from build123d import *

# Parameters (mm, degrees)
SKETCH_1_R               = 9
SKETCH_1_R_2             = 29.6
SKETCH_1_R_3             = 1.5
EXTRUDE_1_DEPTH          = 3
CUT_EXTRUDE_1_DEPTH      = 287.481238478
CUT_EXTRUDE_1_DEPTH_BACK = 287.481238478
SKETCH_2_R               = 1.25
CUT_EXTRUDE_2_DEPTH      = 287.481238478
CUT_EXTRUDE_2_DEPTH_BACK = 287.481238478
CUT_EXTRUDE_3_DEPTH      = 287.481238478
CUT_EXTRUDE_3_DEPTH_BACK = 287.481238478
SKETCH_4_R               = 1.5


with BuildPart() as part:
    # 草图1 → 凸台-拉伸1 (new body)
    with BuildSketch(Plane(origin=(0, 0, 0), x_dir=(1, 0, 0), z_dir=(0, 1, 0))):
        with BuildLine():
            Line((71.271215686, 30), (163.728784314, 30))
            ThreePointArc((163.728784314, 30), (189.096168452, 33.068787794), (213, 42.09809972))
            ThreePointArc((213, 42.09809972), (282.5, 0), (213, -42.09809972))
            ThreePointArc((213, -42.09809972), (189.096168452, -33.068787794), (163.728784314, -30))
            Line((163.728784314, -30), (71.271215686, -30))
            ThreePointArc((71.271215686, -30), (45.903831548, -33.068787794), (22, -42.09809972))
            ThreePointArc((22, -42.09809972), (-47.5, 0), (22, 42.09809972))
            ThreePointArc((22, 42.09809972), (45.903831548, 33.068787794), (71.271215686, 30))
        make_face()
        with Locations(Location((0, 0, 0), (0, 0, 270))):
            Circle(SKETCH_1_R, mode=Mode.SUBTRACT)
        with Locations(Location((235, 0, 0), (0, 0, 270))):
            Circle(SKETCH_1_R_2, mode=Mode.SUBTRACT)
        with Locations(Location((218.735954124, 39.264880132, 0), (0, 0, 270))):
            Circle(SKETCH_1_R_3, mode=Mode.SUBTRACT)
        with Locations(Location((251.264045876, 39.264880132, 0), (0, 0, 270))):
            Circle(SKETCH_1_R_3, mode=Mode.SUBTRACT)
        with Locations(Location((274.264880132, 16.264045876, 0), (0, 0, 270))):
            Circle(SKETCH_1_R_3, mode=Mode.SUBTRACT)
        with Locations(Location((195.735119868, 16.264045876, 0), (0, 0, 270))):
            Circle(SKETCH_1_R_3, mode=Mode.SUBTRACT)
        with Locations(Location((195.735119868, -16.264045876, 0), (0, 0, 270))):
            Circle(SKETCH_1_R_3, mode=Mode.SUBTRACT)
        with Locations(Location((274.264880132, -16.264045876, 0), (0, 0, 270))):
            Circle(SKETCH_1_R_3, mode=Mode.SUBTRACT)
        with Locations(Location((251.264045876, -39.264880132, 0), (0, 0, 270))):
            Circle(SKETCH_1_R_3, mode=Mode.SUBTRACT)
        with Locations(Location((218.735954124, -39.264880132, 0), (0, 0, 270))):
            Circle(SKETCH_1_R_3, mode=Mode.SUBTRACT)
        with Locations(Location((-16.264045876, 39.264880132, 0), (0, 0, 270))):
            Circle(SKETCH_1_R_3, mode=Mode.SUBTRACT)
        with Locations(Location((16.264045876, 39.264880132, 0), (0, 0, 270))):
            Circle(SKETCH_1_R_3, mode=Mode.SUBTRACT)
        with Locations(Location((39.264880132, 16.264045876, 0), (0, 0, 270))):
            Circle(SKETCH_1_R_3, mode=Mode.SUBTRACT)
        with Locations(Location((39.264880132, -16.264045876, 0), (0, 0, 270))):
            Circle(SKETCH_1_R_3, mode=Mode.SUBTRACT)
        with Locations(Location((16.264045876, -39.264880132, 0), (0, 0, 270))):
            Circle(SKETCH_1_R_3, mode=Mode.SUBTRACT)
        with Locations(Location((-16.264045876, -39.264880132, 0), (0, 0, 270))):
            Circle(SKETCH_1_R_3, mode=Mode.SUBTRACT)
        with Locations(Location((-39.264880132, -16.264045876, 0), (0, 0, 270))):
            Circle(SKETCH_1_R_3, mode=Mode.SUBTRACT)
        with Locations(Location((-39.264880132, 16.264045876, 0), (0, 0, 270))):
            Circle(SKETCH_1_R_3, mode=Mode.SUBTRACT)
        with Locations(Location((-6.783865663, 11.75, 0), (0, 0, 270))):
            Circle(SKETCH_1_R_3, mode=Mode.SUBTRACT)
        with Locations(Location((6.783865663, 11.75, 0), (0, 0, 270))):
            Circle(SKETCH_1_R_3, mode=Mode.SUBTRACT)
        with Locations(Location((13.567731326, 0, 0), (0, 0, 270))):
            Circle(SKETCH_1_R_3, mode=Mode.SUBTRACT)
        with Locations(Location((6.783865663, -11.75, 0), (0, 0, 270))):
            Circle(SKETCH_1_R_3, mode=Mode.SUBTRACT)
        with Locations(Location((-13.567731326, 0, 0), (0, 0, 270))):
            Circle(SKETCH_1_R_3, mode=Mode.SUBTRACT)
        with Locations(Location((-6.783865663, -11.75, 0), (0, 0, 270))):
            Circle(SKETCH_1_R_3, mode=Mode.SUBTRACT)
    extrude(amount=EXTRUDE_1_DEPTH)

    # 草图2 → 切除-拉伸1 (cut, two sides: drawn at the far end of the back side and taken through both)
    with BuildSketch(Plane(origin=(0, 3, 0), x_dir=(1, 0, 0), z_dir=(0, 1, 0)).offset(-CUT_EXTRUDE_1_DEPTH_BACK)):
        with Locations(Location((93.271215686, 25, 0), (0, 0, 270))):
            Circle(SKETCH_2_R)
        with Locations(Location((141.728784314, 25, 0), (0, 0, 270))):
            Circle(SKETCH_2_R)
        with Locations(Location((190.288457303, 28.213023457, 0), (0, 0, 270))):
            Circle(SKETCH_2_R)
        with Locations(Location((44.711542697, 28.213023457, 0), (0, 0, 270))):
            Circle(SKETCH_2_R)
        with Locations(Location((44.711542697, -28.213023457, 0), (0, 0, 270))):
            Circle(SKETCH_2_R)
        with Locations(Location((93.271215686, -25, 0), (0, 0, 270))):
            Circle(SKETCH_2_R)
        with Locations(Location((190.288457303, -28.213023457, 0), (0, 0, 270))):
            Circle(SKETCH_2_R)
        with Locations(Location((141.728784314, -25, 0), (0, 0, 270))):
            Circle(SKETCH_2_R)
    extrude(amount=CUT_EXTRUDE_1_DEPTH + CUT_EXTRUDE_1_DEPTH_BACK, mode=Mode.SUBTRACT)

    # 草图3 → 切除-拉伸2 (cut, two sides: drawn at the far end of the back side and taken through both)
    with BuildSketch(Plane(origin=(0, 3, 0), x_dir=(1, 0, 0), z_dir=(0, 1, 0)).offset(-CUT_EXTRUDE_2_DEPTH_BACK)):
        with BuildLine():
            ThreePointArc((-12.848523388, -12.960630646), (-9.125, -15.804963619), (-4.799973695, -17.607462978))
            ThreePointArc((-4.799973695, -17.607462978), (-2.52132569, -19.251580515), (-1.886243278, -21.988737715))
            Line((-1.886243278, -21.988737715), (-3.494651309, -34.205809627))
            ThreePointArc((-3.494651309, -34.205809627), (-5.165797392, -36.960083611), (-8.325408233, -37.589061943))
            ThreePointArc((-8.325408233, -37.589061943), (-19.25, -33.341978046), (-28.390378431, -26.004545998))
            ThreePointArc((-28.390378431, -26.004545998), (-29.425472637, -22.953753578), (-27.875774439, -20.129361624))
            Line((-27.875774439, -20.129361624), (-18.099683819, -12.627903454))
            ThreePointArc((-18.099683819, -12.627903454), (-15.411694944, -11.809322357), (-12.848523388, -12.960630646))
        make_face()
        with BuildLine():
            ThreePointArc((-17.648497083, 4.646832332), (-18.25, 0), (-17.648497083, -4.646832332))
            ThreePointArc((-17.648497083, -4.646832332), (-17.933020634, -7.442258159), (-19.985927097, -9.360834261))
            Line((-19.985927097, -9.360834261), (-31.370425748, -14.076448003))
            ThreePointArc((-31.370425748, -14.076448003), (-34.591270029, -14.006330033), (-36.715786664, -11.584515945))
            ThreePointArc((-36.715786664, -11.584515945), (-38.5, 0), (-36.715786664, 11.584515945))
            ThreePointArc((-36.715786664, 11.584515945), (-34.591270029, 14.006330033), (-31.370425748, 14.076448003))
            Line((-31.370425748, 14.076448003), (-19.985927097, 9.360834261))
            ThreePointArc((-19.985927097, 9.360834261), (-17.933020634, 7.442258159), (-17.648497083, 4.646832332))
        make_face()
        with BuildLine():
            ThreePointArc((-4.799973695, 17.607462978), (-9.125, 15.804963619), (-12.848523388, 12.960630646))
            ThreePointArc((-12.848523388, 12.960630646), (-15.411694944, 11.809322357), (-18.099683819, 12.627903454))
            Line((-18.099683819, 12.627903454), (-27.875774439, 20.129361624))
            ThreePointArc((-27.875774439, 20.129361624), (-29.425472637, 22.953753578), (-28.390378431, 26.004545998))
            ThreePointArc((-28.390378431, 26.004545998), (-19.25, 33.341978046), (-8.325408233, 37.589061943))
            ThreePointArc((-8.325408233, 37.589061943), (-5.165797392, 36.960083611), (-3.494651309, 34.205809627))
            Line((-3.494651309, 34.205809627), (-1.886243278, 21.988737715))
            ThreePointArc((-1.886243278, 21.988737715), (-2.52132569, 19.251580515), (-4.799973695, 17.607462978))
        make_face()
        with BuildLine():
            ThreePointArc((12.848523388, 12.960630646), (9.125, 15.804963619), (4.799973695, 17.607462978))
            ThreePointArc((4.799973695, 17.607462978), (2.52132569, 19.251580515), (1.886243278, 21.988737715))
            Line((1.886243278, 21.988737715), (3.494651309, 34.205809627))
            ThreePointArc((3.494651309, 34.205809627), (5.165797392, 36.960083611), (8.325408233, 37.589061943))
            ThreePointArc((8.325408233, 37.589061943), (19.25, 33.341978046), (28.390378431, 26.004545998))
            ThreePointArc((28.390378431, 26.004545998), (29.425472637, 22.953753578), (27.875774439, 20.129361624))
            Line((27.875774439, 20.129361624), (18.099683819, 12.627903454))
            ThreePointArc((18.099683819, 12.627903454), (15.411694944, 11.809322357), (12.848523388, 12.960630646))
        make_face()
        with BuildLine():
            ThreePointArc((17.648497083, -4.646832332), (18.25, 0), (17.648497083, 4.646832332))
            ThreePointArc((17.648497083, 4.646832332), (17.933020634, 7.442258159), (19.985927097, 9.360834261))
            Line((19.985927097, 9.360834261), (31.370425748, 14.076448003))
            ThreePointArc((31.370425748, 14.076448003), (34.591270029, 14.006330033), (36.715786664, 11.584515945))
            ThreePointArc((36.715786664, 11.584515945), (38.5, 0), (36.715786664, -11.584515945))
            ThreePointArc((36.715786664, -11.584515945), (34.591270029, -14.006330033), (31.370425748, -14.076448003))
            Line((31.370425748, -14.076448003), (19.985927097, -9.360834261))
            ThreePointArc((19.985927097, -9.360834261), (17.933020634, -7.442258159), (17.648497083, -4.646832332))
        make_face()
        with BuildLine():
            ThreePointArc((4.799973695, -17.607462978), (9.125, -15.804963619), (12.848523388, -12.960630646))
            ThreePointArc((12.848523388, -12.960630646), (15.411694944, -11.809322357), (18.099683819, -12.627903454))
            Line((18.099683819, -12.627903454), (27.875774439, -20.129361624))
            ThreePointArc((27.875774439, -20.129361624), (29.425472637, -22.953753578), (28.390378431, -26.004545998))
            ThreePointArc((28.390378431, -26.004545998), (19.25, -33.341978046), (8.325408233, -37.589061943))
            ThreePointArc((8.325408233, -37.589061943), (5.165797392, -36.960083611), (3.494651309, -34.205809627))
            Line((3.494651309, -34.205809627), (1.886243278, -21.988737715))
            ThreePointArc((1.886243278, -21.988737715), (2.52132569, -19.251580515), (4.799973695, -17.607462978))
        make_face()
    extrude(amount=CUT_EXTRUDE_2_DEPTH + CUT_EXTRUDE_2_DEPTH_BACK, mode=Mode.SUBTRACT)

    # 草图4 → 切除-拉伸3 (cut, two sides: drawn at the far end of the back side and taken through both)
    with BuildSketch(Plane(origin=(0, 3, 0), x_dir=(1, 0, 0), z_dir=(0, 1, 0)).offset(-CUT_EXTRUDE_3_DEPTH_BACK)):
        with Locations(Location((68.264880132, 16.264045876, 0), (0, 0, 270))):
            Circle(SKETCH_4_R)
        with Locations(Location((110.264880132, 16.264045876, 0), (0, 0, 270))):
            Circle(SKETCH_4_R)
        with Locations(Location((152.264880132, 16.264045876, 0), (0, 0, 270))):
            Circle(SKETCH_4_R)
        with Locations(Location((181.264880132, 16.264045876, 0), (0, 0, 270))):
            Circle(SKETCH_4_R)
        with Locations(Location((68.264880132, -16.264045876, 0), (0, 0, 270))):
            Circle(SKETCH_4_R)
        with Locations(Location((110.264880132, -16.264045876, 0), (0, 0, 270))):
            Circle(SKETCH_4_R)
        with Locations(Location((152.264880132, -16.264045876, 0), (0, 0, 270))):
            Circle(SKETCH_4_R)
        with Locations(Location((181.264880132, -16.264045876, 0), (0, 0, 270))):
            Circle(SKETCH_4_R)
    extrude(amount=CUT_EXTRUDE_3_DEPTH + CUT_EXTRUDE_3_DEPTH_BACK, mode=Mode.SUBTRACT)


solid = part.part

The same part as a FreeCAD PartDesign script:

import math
import FreeCAD as App
import Part
import Sketcher

V = App.Vector
Q = App.Units.Quantity

doc = App.newDocument("Part")
params = doc.addObject("Spreadsheet::Sheet", "Params")
for row, (alias, value) in enumerate([
    ("sketch1_diameter", "3 mm"),
    ("sketch1_diameter2", "18 mm"),
    ("sketch1_diameter3", "59.2 mm"),
    ("sketch1_radius", "47.5 mm"),
    ("pad1_length", "3 mm"),
    ("sketch2_diameter", "2.5 mm"),
    ("sketch3_radius", "4 mm"),
    ("sketch3_radius2", "38.5 mm"),
    ("sketch3_radius3", "18.25 mm"),
    ("sketch4_diameter", "3 mm"),
], start=1):
    params.set(f"A{row}", alias)
    params.set(f"B{row}", "=" + value)
    params.setAlias(f"B{row}", alias)

body = doc.addObject("PartDesign::Body", "Body")

# Sketch on XZ plane
sketch1 = doc.addObject("Sketcher::SketchObject", "Sketch")
body.addObject(sketch1)
sketch1.AttachmentSupport = (doc.XZ_Plane, [""])
sketch1.MapMode = "FlatFace"
sketch1.addGeometry(Part.LineSegment(V(163.7, -30, 0), V(71.3, -30, 0)), False)
sketch1.addGeometry(Part.ArcOfCircle(Part.Circle(V(71.3, -136.4, 0), V(0, 0, 1), 106.4), math.radians(90), math.radians(118)), False)
sketch1.addGeometry(Part.ArcOfCircle(Part.Circle(V(0, 0, 0), V(0, 0, 1), 47.5), math.radians(62), math.radians(298)), False)
sketch1.addGeometry(Part.ArcOfCircle(Part.Circle(V(71.3, 136.4, 0), V(0, 0, 1), 106.4), math.radians(-118), math.radians(-90)), False)
sketch1.addGeometry(Part.LineSegment(V(71.3, 30, 0), V(163.7, 30, 0)), False)
sketch1.addGeometry(Part.ArcOfCircle(Part.Circle(V(163.7, 136.4, 0), V(0, 0, 1), 106.4), math.radians(-90), math.radians(-62)), False)
sketch1.addGeometry(Part.ArcOfCircle(Part.Circle(V(235, 0, 0), V(0, 0, 1), 47.5), math.radians(-118), math.radians(118)), False)
sketch1.addGeometry(Part.ArcOfCircle(Part.Circle(V(163.7, -136.4, 0), V(0, 0, 1), 106.4), math.radians(62), math.radians(90)), False)
sketch1.addGeometry(Part.Circle(V(251.3, 39.3, 0), V(0, 0, 1), 1.5), False)
sketch1.addGeometry(Part.Circle(V(218.7, 39.3, 0), V(0, 0, 1), 1.5), False)
sketch1.addGeometry(Part.Circle(V(274.3, 16.3, 0), V(0, 0, 1), 1.5), False)
sketch1.addGeometry(Part.Circle(V(195.7, 16.3, 0), V(0, 0, 1), 1.5), False)
sketch1.addGeometry(Part.Circle(V(16.3, 39.3, 0), V(0, 0, 1), 1.5), False)
sketch1.addGeometry(Part.Circle(V(-16.3, 39.3, 0), V(0, 0, 1), 1.5), False)
sketch1.addGeometry(Part.Circle(V(39.3, 16.3, 0), V(0, 0, 1), 1.5), False)
sketch1.addGeometry(Part.Circle(V(6.8, 11.8, 0), V(0, 0, 1), 1.5), False)
sketch1.addGeometry(Part.Circle(V(-39.3, 16.3, 0), V(0, 0, 1), 1.5), False)
sketch1.addGeometry(Part.Circle(V(-6.8, 11.8, 0), V(0, 0, 1), 1.5), False)
sketch1.addGeometry(Part.Circle(V(235, 0, 0), V(0, 0, 1), 29.6), False)
sketch1.addGeometry(Part.Circle(V(274.3, -16.3, 0), V(0, 0, 1), 1.5), False)
sketch1.addGeometry(Part.Circle(V(195.7, -16.3, 0), V(0, 0, 1), 1.5), False)
sketch1.addGeometry(Part.Circle(V(251.3, -39.3, 0), V(0, 0, 1), 1.5), False)
sketch1.addGeometry(Part.Circle(V(218.7, -39.3, 0), V(0, 0, 1), 1.5), False)
sketch1.addGeometry(Part.Circle(V(39.3, -16.3, 0), V(0, 0, 1), 1.5), False)
sketch1.addGeometry(Part.Circle(V(13.6, 0, 0), V(0, 0, 1), 1.5), False)
sketch1.addGeometry(Part.Circle(V(0, 0, 0), V(0, 0, 1), 9), False)
sketch1.addGeometry(Part.Circle(V(-13.6, 0, 0), V(0, 0, 1), 1.5), False)
sketch1.addGeometry(Part.Circle(V(6.8, -11.8, 0), V(0, 0, 1), 1.5), False)
sketch1.addGeometry(Part.Circle(V(-6.8, -11.8, 0), V(0, 0, 1), 1.5), False)
sketch1.addGeometry(Part.Circle(V(-39.3, -16.3, 0), V(0, 0, 1), 1.5), False)
sketch1.addGeometry(Part.Circle(V(16.3, -39.3, 0), V(0, 0, 1), 1.5), False)
sketch1.addGeometry(Part.Circle(V(-16.3, -39.3, 0), V(0, 0, 1), 1.5), False)
sketch1.addConstraint(Sketcher.Constraint("Tangent", 0, 2, 1, 1))
sketch1.addConstraint(Sketcher.Constraint("Tangent", 1, 2, 2, 2))
sketch1.addConstraint(Sketcher.Constraint("Tangent", 2, 1, 3, 1))
sketch1.addConstraint(Sketcher.Constraint("Tangent", 3, 2, 4, 1))
sketch1.addConstraint(Sketcher.Constraint("Tangent", 4, 2, 5, 1))
sketch1.addConstraint(Sketcher.Constraint("Tangent", 5, 2, 6, 2))
sketch1.addConstraint(Sketcher.Constraint("Tangent", 6, 1, 7, 1))
sketch1.addConstraint(Sketcher.Constraint("Tangent", 7, 2, 0, 1))
sketch1.addConstraint(Sketcher.Constraint("Horizontal", 0))
sketch1.addConstraint(Sketcher.Constraint("Horizontal", 4))
sketch1.addConstraint(Sketcher.Constraint("Coincident", 2, 3, -1, 1))
sketch1.addConstraint(Sketcher.Constraint("Coincident", 25, 3, -1, 1))
sketch1.addConstraint(Sketcher.Constraint("Coincident", 18, 3, 6, 3))
sketch1.addConstraint(Sketcher.Constraint("Equal", 1, 3))
sketch1.addConstraint(Sketcher.Constraint("Equal", 3, 5))
sketch1.addConstraint(Sketcher.Constraint("Equal", 2, 6))
sketch1.addConstraint(Sketcher.Constraint("Equal", 5, 7))
sketch1.addConstraint(Sketcher.Constraint("Equal", 8, 9))
sketch1.addConstraint(Sketcher.Constraint("Equal", 9, 10))
sketch1.addConstraint(Sketcher.Constraint("Equal", 10, 11))
sketch1.addConstraint(Sketcher.Constraint("Equal", 11, 12))
sketch1.addConstraint(Sketcher.Constraint("Equal", 12, 13))
sketch1.addConstraint(Sketcher.Constraint("Equal", 13, 14))
sketch1.addConstraint(Sketcher.Constraint("Equal", 14, 15))
sketch1.addConstraint(Sketcher.Constraint("Equal", 15, 16))
sketch1.addConstraint(Sketcher.Constraint("Equal", 16, 17))
sketch1.addConstraint(Sketcher.Constraint("Equal", 17, 19))
sketch1.addConstraint(Sketcher.Constraint("Equal", 19, 20))
sketch1.addConstraint(Sketcher.Constraint("Equal", 20, 21))
sketch1.addConstraint(Sketcher.Constraint("Equal", 21, 22))
sketch1.addConstraint(Sketcher.Constraint("Equal", 22, 23))
sketch1.addConstraint(Sketcher.Constraint("Equal", 23, 24))
sketch1.addConstraint(Sketcher.Constraint("Equal", 24, 26))
sketch1.addConstraint(Sketcher.Constraint("Equal", 26, 27))
sketch1.addConstraint(Sketcher.Constraint("Equal", 27, 28))
sketch1.addConstraint(Sketcher.Constraint("Equal", 28, 29))
sketch1.addConstraint(Sketcher.Constraint("Equal", 29, 30))
sketch1.addConstraint(Sketcher.Constraint("Equal", 30, 31))
sketch1.addConstraint(Sketcher.Constraint("Symmetric", 16, 3, 23, 3, -1, 1))
sketch1.addConstraint(Sketcher.Constraint("Symmetric", 24, 3, 26, 3, -1, 1))
sketch1.addConstraint(Sketcher.Constraint("Symmetric", 17, 3, 27, 3, -1, 1))
sketch1.addConstraint(Sketcher.Constraint("Symmetric", 15, 3, 28, 3, -1, 1))
sketch1.addConstraint(Sketcher.Constraint("Symmetric", 14, 3, 29, 3, -1, 1))
sketch1.addConstraint(Sketcher.Constraint("Symmetric", 13, 3, 30, 3, -1, 1))
sketch1.addConstraint(Sketcher.Constraint("Symmetric", 12, 3, 31, 3, -1, 1))
sketch1.addConstraint(Sketcher.Constraint("Symmetric", 12, 3, 13, 3, -2))
sketch1.addConstraint(Sketcher.Constraint("Symmetric", 14, 3, 16, 3, -2))
sketch1.addConstraint(Sketcher.Constraint("Symmetric", 15, 3, 17, 3, -2))
sketch1.addConstraint(Sketcher.Constraint("Symmetric", 5, 3, 7, 3, -1))
sketch1.addConstraint(Sketcher.Constraint("Symmetric", 10, 3, 19, 3, -1))
sketch1.addConstraint(Sketcher.Constraint("Symmetric", 11, 3, 20, 3, -1))
sketch1.addConstraint(Sketcher.Constraint("Symmetric", 8, 3, 21, 3, -1))
sketch1.addConstraint(Sketcher.Constraint("Symmetric", 9, 3, 22, 3, -1))
sketch1.addConstraint(Sketcher.Constraint("PointOnObject", 24, 3, -1))
sketch1.addConstraint(Sketcher.Constraint("Horizontal", 8, 3, 9, 3))
sketch1.addConstraint(Sketcher.Constraint("Horizontal", 10, 3, 11, 3))
sketch1.addConstraint(Sketcher.Constraint("Horizontal", 9, 3, 12, 3))
sketch1.addConstraint(Sketcher.Constraint("Horizontal", 11, 3, 14, 3))
sketch1.addConstraint(Sketcher.Constraint("Diameter", 8, 3.0))
sketch1.addConstraint(Sketcher.Constraint("Diameter", 25, 18.0))
sketch1.addConstraint(Sketcher.Constraint("Diameter", 18, 59.2))
sketch1.addConstraint(Sketcher.Constraint("Radius", 2, 47.5))
sketch1.addConstraint(Sketcher.Constraint("DistanceX", -1, 1, 6, 3, 235.0))
sketch1.addConstraint(Sketcher.Constraint("DistanceY", 0, 2, -1, 1, 30.0))
sketch1.addConstraint(Sketcher.Constraint("DistanceY", 27, 3, 15, 3, 23.5))
sketch1.addConstraint(Sketcher.Constraint("Radius", 1, 106.381034))
sketch1.addConstraint(Sketcher.Constraint("DistanceY", -1, 1, 8, 3, 39.26488))
sketch1.addConstraint(Sketcher.Constraint("DistanceX", -1, 1, 10, 3, 274.26488))
sketch1.addConstraint(Sketcher.Constraint("DistanceX", -1, 1, 11, 3, 195.73512))
sketch1.addConstraint(Sketcher.Constraint("DistanceX", -1, 1, 14, 3, 39.26488))
sketch1.addConstraint(Sketcher.Constraint("DistanceX", -1, 1, 24, 3, 13.567731))
sketch1.addConstraint(Sketcher.Constraint("DistanceX", 5, 3, 8, 3, 87.535262))
sketch1.addConstraint(Sketcher.Constraint("DistanceX", 9, 3, 8, 3, 32.528092))
sketch1.addConstraint(Sketcher.Constraint("DistanceY", 7, 3, 10, 3, 152.64508))
sketch1.addConstraint(Sketcher.Constraint("DistanceX", 12, 3, 3, 3, 55.00717))
sketch1.addConstraint(Sketcher.Constraint("DistanceX", 15, 3, 12, 3, 9.48018))
sketch1.setExpression("Constraints[58]", "Params.sketch1_diameter")
sketch1.setExpression("Constraints[59]", "Params.sketch1_diameter2")
sketch1.setExpression("Constraints[60]", "Params.sketch1_diameter3")
sketch1.setExpression("Constraints[61]", "Params.sketch1_radius")
pad1 = doc.addObject("PartDesign::Pad", "Pad")
body.addObject(pad1)
pad1.Profile = sketch1
pad1.setExpression("Length", "Params.pad1_length")
pad1.Reversed = True

# Sketch on XZ plane
sketch2 = doc.addObject("Sketcher::SketchObject", "Sketch001")
body.addObject(sketch2)
sketch2.AttachmentSupport = (doc.XZ_Plane, [""])
sketch2.MapMode = "FlatFace"
sketch2.AttachmentOffset = App.Placement(V(0, 0, -3), App.Rotation())
sketch2.addGeometry(Part.Circle(V(93.3, -25, 0), V(0, 0, 1), 1.2), False)
sketch2.addGeometry(Part.Circle(V(141.7, -25, 0), V(0, 0, 1), 1.2), False)
sketch2.addGeometry(Part.Circle(V(190.3, -28.2, 0), V(0, 0, 1), 1.2), False)
sketch2.addGeometry(Part.Circle(V(44.7, -28.2, 0), V(0, 0, 1), 1.2), False)
sketch2.addGeometry(Part.Circle(V(44.7, 28.2, 0), V(0, 0, 1), 1.2), False)
sketch2.addGeometry(Part.Circle(V(93.3, 25, 0), V(0, 0, 1), 1.2), False)
sketch2.addGeometry(Part.Circle(V(190.3, 28.2, 0), V(0, 0, 1), 1.2), False)
sketch2.addGeometry(Part.Circle(V(141.7, 25, 0), V(0, 0, 1), 1.2), False)
sketch2.addConstraint(Sketcher.Constraint("Equal", 0, 1))
sketch2.addConstraint(Sketcher.Constraint("Equal", 1, 2))
sketch2.addConstraint(Sketcher.Constraint("Equal", 2, 3))
sketch2.addConstraint(Sketcher.Constraint("Equal", 3, 4))
sketch2.addConstraint(Sketcher.Constraint("Equal", 4, 5))
sketch2.addConstraint(Sketcher.Constraint("Equal", 5, 6))
sketch2.addConstraint(Sketcher.Constraint("Equal", 6, 7))
sketch2.addConstraint(Sketcher.Constraint("Symmetric", 3, 3, 4, 3, -1))
sketch2.addConstraint(Sketcher.Constraint("Symmetric", 0, 3, 5, 3, -1))
sketch2.addConstraint(Sketcher.Constraint("Symmetric", 2, 3, 6, 3, -1))
sketch2.addConstraint(Sketcher.Constraint("Symmetric", 1, 3, 7, 3, -1))
sketch2.addConstraint(Sketcher.Constraint("Horizontal", 0, 3, 1, 3))
sketch2.addConstraint(Sketcher.Constraint("Horizontal", 2, 3, 3, 3))
sketch2.addConstraint(Sketcher.Constraint("Diameter", 0, 2.5))
sketch2.addConstraint(Sketcher.Constraint("DistanceY", 0, 3, -1, 1, 25.0))
sketch2.addConstraint(Sketcher.Constraint("DistanceX", 0, 3, 1, 3, 48.457569))
sketch2.addConstraint(Sketcher.Constraint("DistanceX", 0, 3, 2, 3, 97.017242))
sketch2.addConstraint(Sketcher.Constraint("DistanceX", 3, 3, 1, 3, 97.017242))
sketch2.addConstraint(Sketcher.Constraint("DistanceX", -1, 1, 0, 3, 93.271216))
sketch2.addConstraint(Sketcher.Constraint("DistanceY", 2, 3, -1, 1, 28.213023))
sketch2.setExpression("Constraints[13]", "Params.sketch2_diameter")
pocket1 = doc.addObject("PartDesign::Pocket", "Pocket")
body.addObject(pocket1)
pocket1.Profile = sketch2
pocket1.Type = "ThroughAll"
pocket1.Midplane = True

# Sketch on XZ plane
sketch3 = doc.addObject("Sketcher::SketchObject", "Sketch002")
body.addObject(sketch3)
sketch3.AttachmentSupport = (doc.XZ_Plane, [""])
sketch3.MapMode = "FlatFace"
sketch3.AttachmentOffset = App.Placement(V(0, 0, -3), App.Rotation())
sketch3.addGeometry(Part.ArcOfCircle(Part.Circle(V(0, 0, 0), V(0, 0, 1), 18.2), math.radians(105), math.radians(135)), False)
sketch3.addGeometry(Part.ArcOfCircle(Part.Circle(V(-15.7, 15.8, 0), V(0, 0, 1), 4), math.radians(-127), math.radians(-45)), False)
sketch3.addGeometry(Part.LineSegment(V(-18.1, 12.6, 0), V(-27.9, 20.1, 0)), False)
sketch3.addGeometry(Part.ArcOfCircle(Part.Circle(V(-25.4, 23.3, 0), V(0, 0, 1), 4), math.radians(138), math.radians(233)), False)
sketch3.addGeometry(Part.ArcOfCircle(Part.Circle(V(0, 0, 0), V(0, 0, 1), 38.5), math.radians(102), math.radians(138)), False)
sketch3.addGeometry(Part.ArcOfCircle(Part.Circle(V(-7.5, 33.7, 0), V(0, 0, 1), 4), math.radians(8), math.radians(102)), False)
sketch3.addGeometry(Part.LineSegment(V(-3.5, 34.2, 0), V(-1.9, 22, 0)), False)
sketch3.addGeometry(Part.ArcOfCircle(Part.Circle(V(-5.9, 21.5, 0), V(0, 0, 1), 4), math.radians(-75), math.radians(8)), False)
sketch3.addGeometry(Part.ArcOfCircle(Part.Circle(V(0, 0, 0), V(0, 0, 1), 18.3), math.radians(165), math.radians(195)), False)
sketch3.addGeometry(Part.ArcOfCircle(Part.Circle(V(-21.5, -5.7, 0), V(0, 0, 1), 4), math.radians(-68), math.radians(15)), False)
sketch3.addGeometry(Part.LineSegment(V(-20, -9.4, 0), V(-31.4, -14.1, 0)), False)
sketch3.addGeometry(Part.ArcOfCircle(Part.Circle(V(-32.9, -10.4, 0), V(0, 0, 1), 4), math.radians(-162), math.radians(-68)), False)
sketch3.addGeometry(Part.ArcOfCircle(Part.Circle(V(0, 0, 0), V(0, 0, 1), 38.5), math.radians(162), math.radians(198)), False)
sketch3.addGeometry(Part.ArcOfCircle(Part.Circle(V(-32.9, 10.4, 0), V(0, 0, 1), 4), math.radians(68), math.radians(162)), False)
sketch3.addGeometry(Part.LineSegment(V(-31.4, 14.1, 0), V(-20, 9.4, 0)), False)
sketch3.addGeometry(Part.ArcOfCircle(Part.Circle(V(-21.5, 5.7, 0), V(0, 0, 1), 4), math.radians(-15), math.radians(68)), False)
sketch3.addGeometry(Part.ArcOfCircle(Part.Circle(V(0, 0, 0), V(0, 0, 1), 18.2), math.radians(-135), math.radians(-105)), False)
sketch3.addGeometry(Part.ArcOfCircle(Part.Circle(V(-5.9, -21.5, 0), V(0, 0, 1), 4), math.radians(-8), math.radians(75)), False)
sketch3.addGeometry(Part.LineSegment(V(-1.9, -22, 0), V(-3.5, -34.2, 0)), False)
sketch3.addGeometry(Part.ArcOfCircle(Part.Circle(V(-7.5, -33.7, 0), V(0, 0, 1), 4), math.radians(-102), math.radians(-8)), False)
sketch3.addGeometry(Part.ArcOfCircle(Part.Circle(V(0, 0, 0), V(0, 0, 1), 38.5), math.radians(-138), math.radians(-102)), False)
sketch3.addGeometry(Part.ArcOfCircle(Part.Circle(V(-25.4, -23.3, 0), V(0, 0, 1), 4), math.radians(127), math.radians(222)), False)
sketch3.addGeometry(Part.LineSegment(V(-27.9, -20.1, 0), V(-18.1, -12.6, 0)), False)
sketch3.addGeometry(Part.ArcOfCircle(Part.Circle(V(-15.7, -15.8, 0), V(0, 0, 1), 4), math.radians(45), math.radians(127)), False)
sketch3.addGeometry(Part.ArcOfCircle(Part.Circle(V(0, 0, 0), V(0, 0, 1), 18.2), math.radians(-75), math.radians(-45)), False)
sketch3.addGeometry(Part.ArcOfCircle(Part.Circle(V(15.7, -15.8, 0), V(0, 0, 1), 4), math.radians(53), math.radians(135)), False)
sketch3.addGeometry(Part.LineSegment(V(18.1, -12.6, 0), V(27.9, -20.1, 0)), False)
sketch3.addGeometry(Part.ArcOfCircle(Part.Circle(V(25.4, -23.3, 0), V(0, 0, 1), 4), math.radians(-42), math.radians(53)), False)
sketch3.addGeometry(Part.ArcOfCircle(Part.Circle(V(0, 0, 0), V(0, 0, 1), 38.5), math.radians(-78), math.radians(-42)), False)
sketch3.addGeometry(Part.ArcOfCircle(Part.Circle(V(7.5, -33.7, 0), V(0, 0, 1), 4), math.radians(-172), math.radians(-78)), False)
sketch3.addGeometry(Part.LineSegment(V(3.5, -34.2, 0), V(1.9, -22, 0)), False)
sketch3.addGeometry(Part.ArcOfCircle(Part.Circle(V(5.9, -21.5, 0), V(0, 0, 1), 4), math.radians(105), math.radians(188)), False)
sketch3.addGeometry(Part.ArcOfCircle(Part.Circle(V(0, 0, 0), V(0, 0, 1), 18.3), math.radians(-15), math.radians(15)), False)
sketch3.addGeometry(Part.ArcOfCircle(Part.Circle(V(21.5, 5.7, 0), V(0, 0, 1), 4), math.radians(112), math.radians(195)), False)
sketch3.addGeometry(Part.LineSegment(V(20, 9.4, 0), V(31.4, 14.1, 0)), False)
sketch3.addGeometry(Part.ArcOfCircle(Part.Circle(V(32.9, 10.4, 0), V(0, 0, 1), 4), math.radians(18), math.radians(112)), False)
sketch3.addGeometry(Part.ArcOfCircle(Part.Circle(V(0, 0, 0), V(0, 0, 1), 38.5), math.radians(-18), math.radians(18)), False)
sketch3.addGeometry(Part.ArcOfCircle(Part.Circle(V(32.9, -10.4, 0), V(0, 0, 1), 4), math.radians(-112), math.radians(-18)), False)
sketch3.addGeometry(Part.LineSegment(V(31.4, -14.1, 0), V(20, -9.4, 0)), False)
sketch3.addGeometry(Part.ArcOfCircle(Part.Circle(V(21.5, -5.7, 0), V(0, 0, 1), 4), math.radians(165), math.radians(248)), False)
sketch3.addGeometry(Part.ArcOfCircle(Part.Circle(V(0, 0, 0), V(0, 0, 1), 18.2), math.radians(45), math.radians(75)), False)
sketch3.addGeometry(Part.ArcOfCircle(Part.Circle(V(5.9, 21.5, 0), V(0, 0, 1), 4), math.radians(172), math.radians(255)), False)
sketch3.addGeometry(Part.LineSegment(V(1.9, 22, 0), V(3.5, 34.2, 0)), False)
sketch3.addGeometry(Part.ArcOfCircle(Part.Circle(V(7.5, 33.7, 0), V(0, 0, 1), 4), math.radians(78), math.radians(172)), False)
sketch3.addGeometry(Part.ArcOfCircle(Part.Circle(V(0, 0, 0), V(0, 0, 1), 38.5), math.radians(42), math.radians(78)), False)
sketch3.addGeometry(Part.ArcOfCircle(Part.Circle(V(25.4, 23.3, 0), V(0, 0, 1), 4), math.radians(-53), math.radians(42)), False)
sketch3.addGeometry(Part.LineSegment(V(27.9, 20.1, 0), V(18.1, 12.6, 0)), False)
sketch3.addGeometry(Part.ArcOfCircle(Part.Circle(V(15.7, 15.8, 0), V(0, 0, 1), 4), math.radians(-135), math.radians(-53)), False)
sketch3.addConstraint(Sketcher.Constraint("Tangent", 0, 2, 1, 2))
sketch3.addConstraint(Sketcher.Constraint("Tangent", 1, 1, 2, 1))
sketch3.addConstraint(Sketcher.Constraint("Tangent", 2, 2, 3, 2))
sketch3.addConstraint(Sketcher.Constraint("Tangent", 3, 1, 4, 2))
sketch3.addConstraint(Sketcher.Constraint("Tangent", 4, 1, 5, 2))
sketch3.addConstraint(Sketcher.Constraint("Tangent", 5, 1, 6, 1))
sketch3.addConstraint(Sketcher.Constraint("Tangent", 6, 2, 7, 2))
sketch3.addConstraint(Sketcher.Constraint("Tangent", 7, 1, 0, 1))
sketch3.addConstraint(Sketcher.Constraint("Tangent", 8, 2, 9, 2))
sketch3.addConstraint(Sketcher.Constraint("Tangent", 9, 1, 10, 1))
sketch3.addConstraint(Sketcher.Constraint("Tangent", 10, 2, 11, 2))
sketch3.addConstraint(Sketcher.Constraint("Tangent", 11, 1, 12, 2))
sketch3.addConstraint(Sketcher.Constraint("Tangent", 12, 1, 13, 2))
sketch3.addConstraint(Sketcher.Constraint("Tangent", 13, 1, 14, 1))
sketch3.addConstraint(Sketcher.Constraint("Tangent", 14, 2, 15, 2))
sketch3.addConstraint(Sketcher.Constraint("Tangent", 15, 1, 8, 1))
sketch3.addConstraint(Sketcher.Constraint("Tangent", 16, 2, 17, 2))
sketch3.addConstraint(Sketcher.Constraint("Tangent", 17, 1, 18, 1))
sketch3.addConstraint(Sketcher.Constraint("Tangent", 18, 2, 19, 2))
sketch3.addConstraint(Sketcher.Constraint("Tangent", 19, 1, 20, 2))
sketch3.addConstraint(Sketcher.Constraint("Tangent", 20, 1, 21, 2))
sketch3.addConstraint(Sketcher.Constraint("Tangent", 21, 1, 22, 1))
sketch3.addConstraint(Sketcher.Constraint("Tangent", 22, 2, 23, 2))
sketch3.addConstraint(Sketcher.Constraint("Tangent", 23, 1, 16, 1))
sketch3.addConstraint(Sketcher.Constraint("Tangent", 24, 2, 25, 2))
sketch3.addConstraint(Sketcher.Constraint("Tangent", 25, 1, 26, 1))
sketch3.addConstraint(Sketcher.Constraint("Tangent", 26, 2, 27, 2))
sketch3.addConstraint(Sketcher.Constraint("Tangent", 27, 1, 28, 2))
sketch3.addConstraint(Sketcher.Constraint("Tangent", 28, 1, 29, 2))
sketch3.addConstraint(Sketcher.Constraint("Tangent", 29, 1, 30, 1))
sketch3.addConstraint(Sketcher.Constraint("Tangent", 30, 2, 31, 2))
sketch3.addConstraint(Sketcher.Constraint("Tangent", 31, 1, 24, 1))
sketch3.addConstraint(Sketcher.Constraint("Tangent", 32, 2, 33, 2))
sketch3.addConstraint(Sketcher.Constraint("Tangent", 33, 1, 34, 1))
sketch3.addConstraint(Sketcher.Constraint("Tangent", 34, 2, 35, 2))
sketch3.addConstraint(Sketcher.Constraint("Tangent", 35, 1, 36, 2))
sketch3.addConstraint(Sketcher.Constraint("Tangent", 36, 1, 37, 2))
sketch3.addConstraint(Sketcher.Constraint("Tangent", 37, 1, 38, 1))
sketch3.addConstraint(Sketcher.Constraint("Tangent", 38, 2, 39, 2))
sketch3.addConstraint(Sketcher.Constraint("Tangent", 39, 1, 32, 1))
sketch3.addConstraint(Sketcher.Constraint("Tangent", 40, 2, 41, 2))
sketch3.addConstraint(Sketcher.Constraint("Tangent", 41, 1, 42, 1))
sketch3.addConstraint(Sketcher.Constraint("Tangent", 42, 2, 43, 2))
sketch3.addConstraint(Sketcher.Constraint("Tangent", 43, 1, 44, 2))
sketch3.addConstraint(Sketcher.Constraint("Tangent", 44, 1, 45, 2))
sketch3.addConstraint(Sketcher.Constraint("Tangent", 45, 1, 46, 1))
sketch3.addConstraint(Sketcher.Constraint("Tangent", 46, 2, 47, 2))
sketch3.addConstraint(Sketcher.Constraint("Tangent", 47, 1, 40, 1))
sketch3.addConstraint(Sketcher.Constraint("Coincident", 0, 3, -1, 1))
sketch3.addConstraint(Sketcher.Constraint("Coincident", 4, 3, -1, 1))
sketch3.addConstraint(Sketcher.Constraint("Coincident", 8, 3, -1, 1))
sketch3.addConstraint(Sketcher.Constraint("Coincident", 12, 3, -1, 1))
sketch3.addConstraint(Sketcher.Constraint("Coincident", 16, 3, -1, 1))
sketch3.addConstraint(Sketcher.Constraint("Coincident", 20, 3, -1, 1))
sketch3.addConstraint(Sketcher.Constraint("Coincident", 24, 3, -1, 1))
sketch3.addConstraint(Sketcher.Constraint("Coincident", 28, 3, -1, 1))
sketch3.addConstraint(Sketcher.Constraint("Coincident", 32, 3, -1, 1))
sketch3.addConstraint(Sketcher.Constraint("Coincident", 36, 3, -1, 1))
sketch3.addConstraint(Sketcher.Constraint("Coincident", 40, 3, -1, 1))
sketch3.addConstraint(Sketcher.Constraint("Coincident", 44, 3, -1, 1))
sketch3.addConstraint(Sketcher.Constraint("Equal", 1, 3))
sketch3.addConstraint(Sketcher.Constraint("Equal", 3, 5))
sketch3.addConstraint(Sketcher.Constraint("Equal", 5, 7))
sketch3.addConstraint(Sketcher.Constraint("Equal", 0, 8))
sketch3.addConstraint(Sketcher.Constraint("Equal", 7, 9))
sketch3.addConstraint(Sketcher.Constraint("Equal", 9, 11))
sketch3.addConstraint(Sketcher.Constraint("Equal", 4, 12))
sketch3.addConstraint(Sketcher.Constraint("Equal", 11, 13))
sketch3.addConstraint(Sketcher.Constraint("Equal", 13, 15))
sketch3.addConstraint(Sketcher.Constraint("Equal", 8, 16))
sketch3.addConstraint(Sketcher.Constraint("Equal", 15, 17))
sketch3.addConstraint(Sketcher.Constraint("Equal", 17, 19))
sketch3.addConstraint(Sketcher.Constraint("Equal", 12, 20))
sketch3.addConstraint(Sketcher.Constraint("Equal", 19, 21))
sketch3.addConstraint(Sketcher.Constraint("Equal", 21, 23))
sketch3.addConstraint(Sketcher.Constraint("Equal", 16, 24))
sketch3.addConstraint(Sketcher.Constraint("Equal", 23, 25))
sketch3.addConstraint(Sketcher.Constraint("Equal", 25, 27))
sketch3.addConstraint(Sketcher.Constraint("Equal", 20, 28))
sketch3.addConstraint(Sketcher.Constraint("Equal", 27, 29))
sketch3.addConstraint(Sketcher.Constraint("Equal", 29, 31))
sketch3.addConstraint(Sketcher.Constraint("Equal", 24, 32))
sketch3.addConstraint(Sketcher.Constraint("Equal", 31, 33))
sketch3.addConstraint(Sketcher.Constraint("Equal", 33, 35))
sketch3.addConstraint(Sketcher.Constraint("Equal", 28, 36))
sketch3.addConstraint(Sketcher.Constraint("Equal", 35, 37))
sketch3.addConstraint(Sketcher.Constraint("Equal", 37, 39))
sketch3.addConstraint(Sketcher.Constraint("Equal", 32, 40))
sketch3.addConstraint(Sketcher.Constraint("Equal", 39, 41))
sketch3.addConstraint(Sketcher.Constraint("Equal", 41, 43))
sketch3.addConstraint(Sketcher.Constraint("Equal", 36, 44))
sketch3.addConstraint(Sketcher.Constraint("Equal", 43, 45))
sketch3.addConstraint(Sketcher.Constraint("Equal", 45, 47))
sketch3.addConstraint(Sketcher.Constraint("Symmetric", 1, 1, 25, 1, -1, 1))
sketch3.addConstraint(Sketcher.Constraint("Symmetric", 5, 1, 29, 1, -1, 1))
sketch3.addConstraint(Sketcher.Constraint("Symmetric", 9, 1, 33, 1, -1, 1))
sketch3.addConstraint(Sketcher.Constraint("Symmetric", 13, 1, 37, 1, -1, 1))
sketch3.addConstraint(Sketcher.Constraint("Symmetric", 17, 1, 41, 1, -1, 1))
sketch3.addConstraint(Sketcher.Constraint("Symmetric", 21, 1, 45, 1, -1, 1))
sketch3.addConstraint(Sketcher.Constraint("Symmetric", 22, 2, 25, 1, -2))
sketch3.addConstraint(Sketcher.Constraint("Symmetric", 18, 2, 29, 1, -2))
sketch3.addConstraint(Sketcher.Constraint("Symmetric", 14, 2, 33, 1, -2))
sketch3.addConstraint(Sketcher.Constraint("Equal", 2, 6))
sketch3.addConstraint(Sketcher.Constraint("Equal", 6, 10))
sketch3.addConstraint(Sketcher.Constraint("Radius", 1, 4.0))
sketch3.addConstraint(Sketcher.Constraint("Radius", 4, 38.5))
sketch3.addConstraint(Sketcher.Constraint("Radius", 0, 18.25))
sketch3.addConstraint(Sketcher.Constraint("Angle", 2, Q("142.5 deg")))
sketch3.addConstraint(Sketcher.Constraint("Angle", 6, Q("-82.5 deg")))
sketch3.addConstraint(Sketcher.Constraint("Angle", 10, Q("-157.5 deg")))
sketch3.addConstraint(Sketcher.Constraint("DistanceX", 1, 3, -1, 1, 15.664638))
sketch3.setExpression("Constraints[104]", "Params.sketch3_radius")
sketch3.setExpression("Constraints[105]", "Params.sketch3_radius2")
sketch3.setExpression("Constraints[106]", "Params.sketch3_radius3")
pocket2 = doc.addObject("PartDesign::Pocket", "Pocket001")
body.addObject(pocket2)
pocket2.Profile = sketch3
pocket2.Type = "ThroughAll"
pocket2.Midplane = True

# Sketch on XZ plane
sketch4 = doc.addObject("Sketcher::SketchObject", "Sketch003")
body.addObject(sketch4)
sketch4.AttachmentSupport = (doc.XZ_Plane, [""])
sketch4.MapMode = "FlatFace"
sketch4.AttachmentOffset = App.Placement(V(0, 0, -3), App.Rotation())
sketch4.addGeometry(Part.Circle(V(68.3, -16.3, 0), V(0, 0, 1), 1.5), False)
sketch4.addGeometry(Part.Circle(V(110.3, -16.3, 0), V(0, 0, 1), 1.5), False)
sketch4.addGeometry(Part.Circle(V(152.3, -16.3, 0), V(0, 0, 1), 1.5), False)
sketch4.addGeometry(Part.Circle(V(181.3, -16.3, 0), V(0, 0, 1), 1.5), False)
sketch4.addGeometry(Part.Circle(V(68.3, 16.3, 0), V(0, 0, 1), 1.5), False)
sketch4.addGeometry(Part.Circle(V(110.3, 16.3, 0), V(0, 0, 1), 1.5), False)
sketch4.addGeometry(Part.Circle(V(152.3, 16.3, 0), V(0, 0, 1), 1.5), False)
sketch4.addGeometry(Part.Circle(V(181.3, 16.3, 0), V(0, 0, 1), 1.5), False)
sketch4.addConstraint(Sketcher.Constraint("Equal", 0, 1))
sketch4.addConstraint(Sketcher.Constraint("Equal", 1, 2))
sketch4.addConstraint(Sketcher.Constraint("Equal", 2, 3))
sketch4.addConstraint(Sketcher.Constraint("Equal", 3, 4))
sketch4.addConstraint(Sketcher.Constraint("Equal", 4, 5))
sketch4.addConstraint(Sketcher.Constraint("Equal", 5, 6))
sketch4.addConstraint(Sketcher.Constraint("Equal", 6, 7))
sketch4.addConstraint(Sketcher.Constraint("Symmetric", 0, 3, 4, 3, -1))
sketch4.addConstraint(Sketcher.Constraint("Symmetric", 1, 3, 5, 3, -1))
sketch4.addConstraint(Sketcher.Constraint("Symmetric", 2, 3, 6, 3, -1))
sketch4.addConstraint(Sketcher.Constraint("Symmetric", 3, 3, 7, 3, -1))
sketch4.addConstraint(Sketcher.Constraint("Horizontal", 0, 3, 1, 3))
sketch4.addConstraint(Sketcher.Constraint("Horizontal", 1, 3, 2, 3))
sketch4.addConstraint(Sketcher.Constraint("Horizontal", 2, 3, 3, 3))
sketch4.addConstraint(Sketcher.Constraint("Diameter", 0, 3.0))
sketch4.addConstraint(Sketcher.Constraint("DistanceX", 0, 3, 1, 3, 42.0))
sketch4.addConstraint(Sketcher.Constraint("DistanceX", 1, 3, 2, 3, 42.0))
sketch4.addConstraint(Sketcher.Constraint("DistanceX", 2, 3, 3, 3, 29.0))
sketch4.addConstraint(Sketcher.Constraint("DistanceX", -1, 1, 0, 3, 68.26488))
sketch4.addConstraint(Sketcher.Constraint("DistanceY", 0, 3, 4, 3, 32.528092))
sketch4.setExpression("Constraints[14]", "Params.sketch4_diameter")
pocket3 = doc.addObject("PartDesign::Pocket", "Pocket002")
body.addObject(pocket3)
pocket3.Profile = sketch4
pocket3.Type = "ThroughAll"
pocket3.Midplane = True

doc.recompute()
